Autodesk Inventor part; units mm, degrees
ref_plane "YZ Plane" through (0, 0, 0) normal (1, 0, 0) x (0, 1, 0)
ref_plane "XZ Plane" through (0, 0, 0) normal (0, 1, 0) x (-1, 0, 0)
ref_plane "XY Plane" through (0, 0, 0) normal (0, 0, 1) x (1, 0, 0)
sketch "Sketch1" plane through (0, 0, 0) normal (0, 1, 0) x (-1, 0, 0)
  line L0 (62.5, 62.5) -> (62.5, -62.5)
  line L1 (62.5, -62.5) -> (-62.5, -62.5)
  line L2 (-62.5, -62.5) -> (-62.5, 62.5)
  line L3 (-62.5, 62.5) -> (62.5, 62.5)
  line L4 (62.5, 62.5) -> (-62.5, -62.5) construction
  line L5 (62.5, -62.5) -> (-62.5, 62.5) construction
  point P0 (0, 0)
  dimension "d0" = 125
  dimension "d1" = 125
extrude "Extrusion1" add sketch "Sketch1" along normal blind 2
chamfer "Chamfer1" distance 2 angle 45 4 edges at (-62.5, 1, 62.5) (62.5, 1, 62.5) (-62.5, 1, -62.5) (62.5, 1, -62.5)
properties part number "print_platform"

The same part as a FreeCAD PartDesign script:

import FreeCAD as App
import Part
import Sketcher

V = App.Vector
Q = App.Units.Quantity


def edges_at(feature, points):
    """Names of the edges that pass closest to the given points."""
    edges = feature.Shape.Edges
    near = lambda p: min(range(len(edges)), key=lambda i: edges[i].distToShape(Part.Vertex(*p))[0])
    return sorted({f"Edge{near(p) + 1}" for p in points})


def add_polygon(sketch, points):
    """Adds a closed chain of lines whose ends are joined by coincident constraints."""
    first, n = sketch.GeometryCount, len(points)
    for a, b in zip(points, points[1:] + points[:1]):
        sketch.addGeometry(Part.LineSegment(App.Vector(*a, 0), App.Vector(*b, 0)), False)
    for i in range(n):
        sketch.addConstraint(Sketcher.Constraint("Coincident", first + i, 2, first + (i + 1) % n, 1))

doc = App.newDocument("Part")
params = doc.addObject("Spreadsheet::Sheet", "Params")
for row, (alias, value) in enumerate([
    ("sketch1_width", "125 mm"),
    ("pad1_length", "2 mm"),
    ("chamfer_size", "2 mm"),
], start=1):
    params.set(f"A{row}", alias)
    params.set(f"B{row}", "=" + value)
    params.setAlias(f"B{row}", alias)

body = doc.addObject("PartDesign::Body", "Body")

# Sketch on XZ plane
sketch1 = body.newObject("Sketcher::SketchObject", "Sketch")
sketch1.AttachmentSupport = (doc.getObject("XZ_Plane"), [""])
sketch1.MapMode = "FlatFace"
add_polygon(sketch1, [(-62, -62), (-62, 62), (62, 62), (62, -62)])  # lines 0-3
sketch1.addConstraint([
    Sketcher.Constraint("Vertical", 0),
    Sketcher.Constraint("Horizontal", 1),
    Sketcher.Constraint("Vertical", 2),
    Sketcher.Constraint("Horizontal", 3),
    Sketcher.Constraint("Symmetric", 0, 2, 2, 2, -1, 1),
    Sketcher.Constraint("Equal", 3, 0),
    Sketcher.Constraint("DistanceX", 1, 1, 1, 2, Q("125 mm")),
])
sketch1.setExpression("Constraints[10]", "Params.sketch1_width")
pad1 = body.newObject("PartDesign::Pad", "Pad")
pad1.Profile = sketch1
pad1.setExpression("Length", "Params.pad1_length")
pad1.Reversed = True
doc.recompute()

chamfer = body.newObject("PartDesign::Chamfer", "Chamfer")
chamfer.Base = (pad1, edges_at(pad1, [
    (-62.5, 1, 62.5),
    (62.5, 1, 62.5),
    (-62.5, 1, -62.5),
    (62.5, 1, -62.5),
]))
chamfer.setExpression("Size", "Params.chamfer_size")

doc.recompute()
